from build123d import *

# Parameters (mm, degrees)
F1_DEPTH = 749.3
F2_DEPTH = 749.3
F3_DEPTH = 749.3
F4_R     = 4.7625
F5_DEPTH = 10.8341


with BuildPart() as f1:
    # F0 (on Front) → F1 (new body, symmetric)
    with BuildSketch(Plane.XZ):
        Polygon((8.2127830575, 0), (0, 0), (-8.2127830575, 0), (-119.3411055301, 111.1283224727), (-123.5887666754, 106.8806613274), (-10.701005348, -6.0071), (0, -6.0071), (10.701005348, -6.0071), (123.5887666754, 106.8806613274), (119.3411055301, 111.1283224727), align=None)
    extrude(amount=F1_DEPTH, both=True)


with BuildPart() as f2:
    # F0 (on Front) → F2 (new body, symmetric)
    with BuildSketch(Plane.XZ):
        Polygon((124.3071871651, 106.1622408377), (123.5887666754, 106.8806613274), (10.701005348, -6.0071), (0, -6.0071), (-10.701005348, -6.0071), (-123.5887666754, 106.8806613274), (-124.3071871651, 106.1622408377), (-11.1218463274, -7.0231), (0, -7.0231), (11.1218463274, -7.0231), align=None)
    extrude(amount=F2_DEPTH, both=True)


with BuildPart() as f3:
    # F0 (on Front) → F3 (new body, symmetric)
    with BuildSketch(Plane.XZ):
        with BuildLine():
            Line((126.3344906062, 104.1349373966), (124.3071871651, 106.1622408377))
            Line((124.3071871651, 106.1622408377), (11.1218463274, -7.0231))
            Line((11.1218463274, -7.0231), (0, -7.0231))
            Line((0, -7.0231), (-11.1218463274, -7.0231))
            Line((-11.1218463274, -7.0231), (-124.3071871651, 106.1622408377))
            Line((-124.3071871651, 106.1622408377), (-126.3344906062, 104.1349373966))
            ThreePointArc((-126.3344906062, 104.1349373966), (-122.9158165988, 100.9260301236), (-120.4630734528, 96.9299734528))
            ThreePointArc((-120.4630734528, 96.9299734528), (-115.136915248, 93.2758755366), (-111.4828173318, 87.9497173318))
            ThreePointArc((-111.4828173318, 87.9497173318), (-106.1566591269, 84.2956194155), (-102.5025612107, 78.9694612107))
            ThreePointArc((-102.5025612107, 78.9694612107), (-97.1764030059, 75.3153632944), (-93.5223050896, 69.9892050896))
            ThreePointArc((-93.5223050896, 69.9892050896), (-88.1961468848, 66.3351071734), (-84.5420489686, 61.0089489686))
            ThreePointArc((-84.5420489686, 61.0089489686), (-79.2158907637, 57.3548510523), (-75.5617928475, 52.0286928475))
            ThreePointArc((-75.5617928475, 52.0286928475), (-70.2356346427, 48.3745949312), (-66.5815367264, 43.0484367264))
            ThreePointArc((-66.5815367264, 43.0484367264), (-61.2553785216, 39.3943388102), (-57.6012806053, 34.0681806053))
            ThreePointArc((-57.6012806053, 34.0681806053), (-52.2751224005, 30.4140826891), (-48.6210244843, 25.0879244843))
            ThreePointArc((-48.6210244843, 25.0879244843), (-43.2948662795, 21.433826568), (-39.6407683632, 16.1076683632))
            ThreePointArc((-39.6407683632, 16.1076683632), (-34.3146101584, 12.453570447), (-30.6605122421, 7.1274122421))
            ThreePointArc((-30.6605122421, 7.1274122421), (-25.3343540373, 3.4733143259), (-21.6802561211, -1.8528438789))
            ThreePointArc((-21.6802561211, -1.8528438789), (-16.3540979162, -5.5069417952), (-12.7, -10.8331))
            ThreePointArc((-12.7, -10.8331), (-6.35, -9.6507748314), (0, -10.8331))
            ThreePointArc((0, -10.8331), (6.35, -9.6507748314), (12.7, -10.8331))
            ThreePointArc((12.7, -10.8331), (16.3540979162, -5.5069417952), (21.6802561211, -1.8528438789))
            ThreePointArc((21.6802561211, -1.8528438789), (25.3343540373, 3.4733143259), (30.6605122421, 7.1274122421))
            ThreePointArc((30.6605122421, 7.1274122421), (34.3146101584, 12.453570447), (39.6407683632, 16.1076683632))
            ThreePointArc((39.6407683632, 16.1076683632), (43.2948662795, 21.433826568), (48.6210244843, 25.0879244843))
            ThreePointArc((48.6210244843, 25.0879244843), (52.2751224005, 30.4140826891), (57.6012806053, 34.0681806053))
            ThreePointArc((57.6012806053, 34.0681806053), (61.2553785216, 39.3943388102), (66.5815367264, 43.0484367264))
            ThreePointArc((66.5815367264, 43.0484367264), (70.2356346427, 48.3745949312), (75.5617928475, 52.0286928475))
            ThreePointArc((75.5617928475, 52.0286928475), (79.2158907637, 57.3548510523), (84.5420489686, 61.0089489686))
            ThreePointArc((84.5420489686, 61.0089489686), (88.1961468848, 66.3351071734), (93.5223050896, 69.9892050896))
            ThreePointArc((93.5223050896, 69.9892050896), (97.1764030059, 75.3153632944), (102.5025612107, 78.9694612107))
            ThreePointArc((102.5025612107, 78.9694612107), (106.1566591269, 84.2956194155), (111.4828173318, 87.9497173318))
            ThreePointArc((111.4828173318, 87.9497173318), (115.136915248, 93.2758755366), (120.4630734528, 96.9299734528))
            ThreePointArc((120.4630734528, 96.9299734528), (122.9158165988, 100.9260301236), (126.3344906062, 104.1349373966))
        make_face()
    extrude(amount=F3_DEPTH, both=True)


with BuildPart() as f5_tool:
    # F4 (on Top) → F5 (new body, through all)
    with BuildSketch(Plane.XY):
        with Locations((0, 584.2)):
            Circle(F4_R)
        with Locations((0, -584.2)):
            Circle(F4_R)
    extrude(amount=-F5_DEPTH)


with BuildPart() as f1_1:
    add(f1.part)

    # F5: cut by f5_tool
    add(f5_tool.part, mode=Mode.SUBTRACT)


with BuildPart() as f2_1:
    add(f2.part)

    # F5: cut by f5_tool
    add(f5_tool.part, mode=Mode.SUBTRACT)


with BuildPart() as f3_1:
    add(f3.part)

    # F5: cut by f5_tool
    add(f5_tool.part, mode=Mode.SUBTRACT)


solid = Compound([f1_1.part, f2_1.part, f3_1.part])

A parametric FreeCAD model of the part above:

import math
import FreeCAD as App
import Part
import Sketcher
from FreeCAD import Vector
Q = App.Units.Quantity


def add_polygon(sketch, points):
    """Adds a closed chain of lines whose ends are joined by coincident constraints."""
    first, n = sketch.GeometryCount, len(points)
    for a, b in zip(points, points[1:] + points[:1]):
        sketch.addGeometry(Part.LineSegment(App.Vector(*a, 0), App.Vector(*b, 0)), False)
    for i in range(n):
        sketch.addConstraint(Sketcher.Constraint("Coincident", first + i, 2, first + (i + 1) % n, 1))

doc = App.newDocument("Part")
body = doc.addObject("PartDesign::Body", "Body")

# Sketch on XZ plane
sketch1 = body.newObject("Sketcher::SketchObject", "Sketch")
sketch1.AttachmentSupport = (doc.getObject("XZ_Plane"), [""])
sketch1.MapMode = "FlatFace"
add_polygon(sketch1, [(8.212783, 0), (-8.212783, 0), (-119.341106, 111.128322), (-123.588767, 106.880661), (-10.701005, -6.0071), (10.701005, -6.0071), (123.588767, 106.880661), (119.341106, 111.128322)])  # lines 0-7
sketch1.addConstraint([
    Sketcher.Constraint("Horizontal", 0),
    Sketcher.Constraint("Horizontal", 4),
    Sketcher.Constraint("Symmetric", 0, 2, 7, 2, -1, 1),
    Sketcher.Constraint("Symmetric", 2, 2, 5, 2, -2),
    Sketcher.Constraint("Symmetric", 1, 2, 6, 2, -2),
    Sketcher.Constraint("Perpendicular", 1, 2),
    Sketcher.Constraint("Perpendicular", 2, 3),
    Sketcher.Constraint("Perpendicular", 3, 5),
    Sketcher.Constraint("Perpendicular", 5, 6),
    Sketcher.Constraint("Distance", 2, Q("0.2365 in")),
    Sketcher.Constraint("DistanceY", -1, 1, 2, 2, Q("4.2079001 in")),
    Sketcher.Constraint("DistanceY", 3, 2, -1, 1, Q("0.2365 in")),
    Sketcher.Constraint("DistanceX", 4, 1, 4, 2, 21.402011),
])
pad1 = body.newObject("PartDesign::Pad", "Pad")
pad1.Profile = sketch1
pad1.Length = Q("59 in")
pad1.Midplane = True
body2 = doc.addObject("PartDesign::Body", "Body001")

# Sketch on XZ plane
sketch2 = body2.newObject("Sketcher::SketchObject", "Sketch001")
sketch2.AttachmentSupport = (doc.getObject("XZ_Plane001"), [""])
sketch2.MapMode = "FlatFace"
add_polygon(sketch2, [(124.307187, 106.162241), (123.588767, 106.880661), (10.701005, -6.0071), (-10.701005, -6.0071), (-123.588767, 106.880661), (-124.307187, 106.162241), (-11.121846, -7.0231), (11.121846, -7.0231)])  # lines 0-7
sketch2.addConstraint([
    Sketcher.Constraint("Horizontal", 2),
    Sketcher.Constraint("Horizontal", 6),
    Sketcher.Constraint("Symmetric", 0, 2, 3, 2, -2),
    Sketcher.Constraint("Symmetric", 4, 2, 7, 2, -2),
    Sketcher.Constraint("Perpendicular", 0, 1),
    Sketcher.Constraint("Perpendicular", 1, 3),
    Sketcher.Constraint("Perpendicular", 3, 4),
    Sketcher.Constraint("Perpendicular", 4, 5),
    Sketcher.Constraint("Perpendicular", 5, 7),
    Sketcher.Constraint("Distance", 0, Q("0.04 in")),
    Sketcher.Constraint("DistanceY", 5, 2, 2, 2, Q("0.04 in")),
    Sketcher.Constraint("DistanceY", -1, 1, 0, 2, Q("4.2079001 in")),
    Sketcher.Constraint("DistanceY", 1, 2, -1, 1, Q("0.2365 in")),
    Sketcher.Constraint("DistanceX", 2, 2, 2, 1, 21.402011),
])
pad2 = body2.newObject("PartDesign::Pad", "Pad001")
pad2.Profile = sketch2
pad2.Length = Q("59 in")
pad2.Midplane = True
body3 = doc.addObject("PartDesign::Body", "Body002")

# Sketch on XZ plane
sketch3 = body3.newObject("Sketcher::SketchObject", "Sketch002")
sketch3.AttachmentSupport = (doc.getObject("XZ_Plane002"), [""])
sketch3.MapMode = "FlatFace"
sketch3.addGeometry([
    Part.LineSegment(Vector(126.334491, 104.134937, 0), Vector(124.307187, 106.162241, 0)),  # 0
    Part.LineSegment(Vector(124.307187, 106.162241, 0), Vector(11.121846, -7.0231, 0)),  # 1
    Part.LineSegment(Vector(11.121846, -7.0231, 0), Vector(-11.121846, -7.0231, 0)),  # 2
    Part.LineSegment(Vector(-11.121846, -7.0231, 0), Vector(-124.307187, 106.162241, 0)),  # 3
    Part.LineSegment(Vector(-124.307187, 106.162241, 0), Vector(-126.334491, 104.134937, 0)),  # 4
    Part.ArcOfCircle(Part.Circle(Vector(-136.592916, 89.780387, 0), Vector(0, 0, 1), 17.643367), math.radians(23.905415), math.radians(54.448647)),  # 5
    Part.ArcOfCircle(Part.Circle(Vector(-127.612659, 80.800131, 0), Vector(0, 0, 1), 17.643367), math.radians(23.905415), math.radians(66.094585)),  # 6
    Part.ArcOfCircle(Part.Circle(Vector(-118.632403, 71.819875, 0), Vector(0, 0, 1), 17.643367), math.radians(23.905415), math.radians(66.094585)),  # 7
    Part.ArcOfCircle(Part.Circle(Vector(-109.652147, 62.839619, 0), Vector(0, 0, 1), 17.643367), math.radians(23.905415), math.radians(66.094585)),  # 8
    Part.ArcOfCircle(Part.Circle(Vector(-100.671891, 53.859363, 0), Vector(0, 0, 1), 17.643367), math.radians(23.905415), math.radians(66.094585)),  # 9
    Part.ArcOfCircle(Part.Circle(Vector(-91.691635, 44.879107, 0), Vector(0, 0, 1), 17.643367), math.radians(23.905415), math.radians(66.094585)),  # 10
    Part.ArcOfCircle(Part.Circle(Vector(-82.711379, 35.898851, 0), Vector(0, 0, 1), 17.643367), math.radians(23.905415), math.radians(66.094585)),  # 11
    Part.ArcOfCircle(Part.Circle(Vector(-73.731123, 26.918595, 0), Vector(0, 0, 1), 17.643367), math.radians(23.905415), math.radians(66.094585)),  # 12
    Part.ArcOfCircle(Part.Circle(Vector(-64.750867, 17.938339, 0), Vector(0, 0, 1), 17.643367), math.radians(23.905415), math.radians(66.094585)),  # 13
    Part.ArcOfCircle(Part.Circle(Vector(-55.77061, 8.958082, 0), Vector(0, 0, 1), 17.643367), math.radians(23.905415), math.radians(66.094585)),  # 14
    Part.ArcOfCircle(Part.Circle(Vector(-46.790354, -0.022174, 0), Vector(0, 0, 1), 17.643367), math.radians(23.905415), math.radians(66.094585)),  # 15
    Part.ArcOfCircle(Part.Circle(Vector(-37.810098, -9.00243, 0), Vector(0, 0, 1), 17.643367), math.radians(23.905415), math.radians(66.094585)),  # 16
    Part.ArcOfCircle(Part.Circle(Vector(-28.829842, -17.982686, 0), Vector(0, 0, 1), 17.643367), math.radians(23.905415), math.radians(66.094585)),  # 17
    Part.ArcOfCircle(Part.Circle(Vector(-6.35, -27.294141, 0), Vector(0, 0, 1), 17.643367), math.radians(68.905415), math.radians(111.094585)),  # 18
    Part.ArcOfCircle(Part.Circle(Vector(6.35, -27.294141, 0), Vector(0, 0, 1), 17.643367), math.radians(68.905415), math.radians(111.094585)),  # 19
    Part.ArcOfCircle(Part.Circle(Vector(28.829842, -17.982686, 0), Vector(0, 0, 1), 17.643367), math.radians(113.905415), math.radians(156.094585)),  # 20
    Part.ArcOfCircle(Part.Circle(Vector(37.810098, -9.00243, 0), Vector(0, 0, 1), 17.643367), math.radians(113.905415), math.radians(156.094585)),  # 21
    Part.ArcOfCircle(Part.Circle(Vector(46.790354, -0.022174, 0), Vector(0, 0, 1), 17.643367), math.radians(113.905415), math.radians(156.094585)),  # 22
    Part.ArcOfCircle(Part.Circle(Vector(55.77061, 8.958082, 0), Vector(0, 0, 1), 17.643367), math.radians(113.905415), math.radians(156.094585)),  # 23
    Part.ArcOfCircle(Part.Circle(Vector(64.750867, 17.938339, 0), Vector(0, 0, 1), 17.643367), math.radians(113.905415), math.radians(156.094585)),  # 24
    Part.ArcOfCircle(Part.Circle(Vector(73.731123, 26.918595, 0), Vector(0, 0, 1), 17.643367), math.radians(113.905415), math.radians(156.094585)),  # 25
    Part.ArcOfCircle(Part.Circle(Vector(82.711379, 35.898851, 0), Vector(0, 0, 1), 17.643367), math.radians(113.905415), math.radians(156.094585)),  # 26
    Part.ArcOfCircle(Part.Circle(Vector(91.691635, 44.879107, 0), Vector(0, 0, 1), 17.643367), math.radians(113.905415), math.radians(156.094585)),  # 27
    Part.ArcOfCircle(Part.Circle(Vector(100.671891, 53.859363, 0), Vector(0, 0, 1), 17.643367), math.radians(113.905415), math.radians(156.094585)),  # 28
    Part.ArcOfCircle(Part.Circle(Vector(109.652147, 62.839619, 0), Vector(0, 0, 1), 17.643367), math.radians(113.905415), math.radians(156.094585)),  # 29
    Part.ArcOfCircle(Part.Circle(Vector(118.632403, 71.819875, 0), Vector(0, 0, 1), 17.643367), math.radians(113.905415), math.radians(156.094585)),  # 30
    Part.ArcOfCircle(Part.Circle(Vector(127.612659, 80.800131, 0), Vector(0, 0, 1), 17.643367), math.radians(113.905415), math.radians(156.094585)),  # 31
    Part.ArcOfCircle(Part.Circle(Vector(136.592916, 89.780387, 0), Vector(0, 0, 1), 17.643367), math.radians(125.551353), math.radians(156.094585)),  # 32
], False)
sketch3.addConstraint([
    Sketcher.Constraint("Coincident", 0, 2, 1, 1),
    Sketcher.Constraint("Coincident", 1, 2, 2, 1),
    Sketcher.Constraint("Coincident", 2, 2, 3, 1),
    Sketcher.Constraint("Coincident", 3, 2, 4, 1),
    Sketcher.Constraint("Coincident", 4, 2, 5, 2),
    Sketcher.Constraint("Coincident", 5, 1, 6, 2),
    Sketcher.Constraint("Coincident", 6, 1, 7, 2),
    Sketcher.Constraint("Coincident", 7, 1, 8, 2),
    Sketcher.Constraint("Coincident", 8, 1, 9, 2),
    Sketcher.Constraint("Coincident", 9, 1, 10, 2),
    Sketcher.Constraint("Coincident", 10, 1, 11, 2),
    Sketcher.Constraint("Coincident", 11, 1, 12, 2),
    Sketcher.Constraint("Coincident", 12, 1, 13, 2),
    Sketcher.Constraint("Coincident", 13, 1, 14, 2),
    Sketcher.Constraint("Coincident", 14, 1, 15, 2),
    Sketcher.Constraint("Coincident", 15, 1, 16, 2),
    Sketcher.Constraint("Coincident", 16, 1, 17, 2),
    Sketcher.Constraint("Coincident", 17, 1, 18, 2),
    Sketcher.Constraint("Coincident", 18, 1, 19, 2),
    Sketcher.Constraint("Coincident", 19, 1, 20, 2),
    Sketcher.Constraint("Coincident", 20, 1, 21, 2),
    Sketcher.Constraint("Coincident", 21, 1, 22, 2),
    Sketcher.Constraint("Coincident", 22, 1, 23, 2),
    Sketcher.Constraint("Coincident", 23, 1, 24, 2),
    Sketcher.Constraint("Coincident", 24, 1, 25, 2),
    Sketcher.Constraint("Coincident", 25, 1, 26, 2),
    Sketcher.Constraint("Coincident", 26, 1, 27, 2),
    Sketcher.Constraint("Coincident", 27, 1, 28, 2),
    Sketcher.Constraint("Coincident", 28, 1, 29, 2),
    Sketcher.Constraint("Coincident", 29, 1, 30, 2),
    Sketcher.Constraint("Coincident", 30, 1, 31, 2),
    Sketcher.Constraint("Coincident", 31, 1, 32, 2),
    Sketcher.Constraint("Coincident", 32, 1, 0, 1),
    Sketcher.Constraint("Horizontal", 2),
    Sketcher.Constraint("Equal", 5, 6),
    Sketcher.Constraint("Equal", 6, 7),
    Sketcher.Constraint("Equal", 7, 8),
    Sketcher.Constraint("Equal", 8, 9),
    Sketcher.Constraint("Equal", 9, 10),
    Sketcher.Constraint("Equal", 10, 11),
    Sketcher.Constraint("Equal", 11, 12),
    Sketcher.Constraint("Equal", 12, 13),
    Sketcher.Constraint("Equal", 13, 14),
    Sketcher.Constraint("Equal", 14, 15),
    Sketcher.Constraint("Equal", 15, 16),
    Sketcher.Constraint("Equal", 16, 17),
    Sketcher.Constraint("Equal", 17, 18),
    Sketcher.Constraint("Equal", 18, 19),
    Sketcher.Constraint("Equal", 19, 20),
    Sketcher.Constraint("Equal", 20, 21),
    Sketcher.Constraint("Equal", 21, 22),
    Sketcher.Constraint("Equal", 22, 23),
    Sketcher.Constraint("Equal", 23, 24),
    Sketcher.Constraint("Equal", 24, 25),
    Sketcher.Constraint("Equal", 25, 26),
    Sketcher.Constraint("Equal", 26, 27),
    Sketcher.Constraint("Equal", 27, 28),
    Sketcher.Constraint("Equal", 28, 29),
    Sketcher.Constraint("Equal", 29, 30),
    Sketcher.Constraint("Equal", 30, 31),
    Sketcher.Constraint("Equal", 31, 32),
    Sketcher.Constraint("Symmetric", 18, 3, 19, 3, -2),
    Sketcher.Constraint("Symmetric", 17, 3, 20, 3, -2),
    Sketcher.Constraint("Symmetric", 16, 3, 21, 3, -2),
    Sketcher.Constraint("Symmetric", 15, 3, 22, 3, -2),
    Sketcher.Constraint("Symmetric", 14, 3, 23, 3, -2),
    Sketcher.Constraint("Symmetric", 13, 3, 24, 3, -2),
    Sketcher.Constraint("Symmetric", 12, 3, 25, 3, -2),
    Sketcher.Constraint("Symmetric", 11, 3, 26, 3, -2),
    Sketcher.Constraint("Symmetric", 10, 3, 27, 3, -2),
    Sketcher.Constraint("Symmetric", 9, 3, 28, 3, -2),
    Sketcher.Constraint("Symmetric", 8, 3, 29, 3, -2),
    Sketcher.Constraint("Symmetric", 7, 3, 30, 3, -2),
    Sketcher.Constraint("Symmetric", 6, 3, 31, 3, -2),
    Sketcher.Constraint("Symmetric", 5, 3, 32, 3, -2),
    Sketcher.Constraint("Symmetric", 0, 2, 3, 2, -2),
    Sketcher.Constraint("Perpendicular", 0, 1),
    Sketcher.Constraint("Perpendicular", 1, 3),
    Sketcher.Constraint("Perpendicular", 3, 4),
    Sketcher.Constraint("Horizontal", 17, 1, 18, 1),
    Sketcher.Constraint("Equal", 1, 3),
    Sketcher.Constraint("DistanceX", 17, 1, -1, 1, Q("0.5 in")),
    Sketcher.Constraint("DistanceX", 12, 3, -1, 1, Q("2.9028001 in")),
    Sketcher.Constraint("DistanceY", 1, 2, -1, 1, Q("0.2765 in")),
    Sketcher.Constraint("DistanceY", 17, 1, -1, 1, Q("0.4265 in")),
    Sketcher.Constraint("Radius", 5, 17.643367),
    Sketcher.Constraint("DistanceX", 16, 3, -1, 1, 37.810098),
    Sketcher.Constraint("Distance", 0, 2.86704),
    Sketcher.Constraint("DistanceX", 2, 2, 2, 1, 22.243693),
    Sketcher.Constraint("DistanceX", 6, 3, -1, 1, 127.612659),
    Sketcher.Constraint("DistanceY", -1, 1, 6, 3, 80.800131),
    Sketcher.Constraint("DistanceY", -1, 1, 8, 3, 62.839619),
    Sketcher.Constraint("DistanceX", 9, 3, -1, 1, 100.671891),
    Sketcher.Constraint("DistanceX", 11, 3, -1, 1, 82.711379),
    Sketcher.Constraint("DistanceY", -1, 1, 11, 3, 35.898851),
    Sketcher.Constraint("DistanceY", -1, 1, 13, 3, 17.938339),
    Sketcher.Constraint("DistanceX", 14, 3, -1, 1, 55.77061),
    Sketcher.Constraint("DistanceY", 16, 3, -1, 1, 9.00243),
    Sketcher.Constraint("DistanceY", -1, 1, 0, 2, 106.162241),
    Sketcher.Constraint("DistanceX", 7, 1, -1, 1, 102.502561),
    Sketcher.Constraint("DistanceY", -1, 1, 7, 1, 78.969461),
    Sketcher.Constraint("DistanceX", 9, 1, -1, 1, 84.542049),
    Sketcher.Constraint("DistanceY", -1, 1, 9, 1, 61.008949),
    Sketcher.Constraint("DistanceX", 12, 1, -1, 1, 57.601281),
    Sketcher.Constraint("DistanceY", -1, 1, 12, 1, 34.068181),
    Sketcher.Constraint("DistanceX", 14, 1, -1, 1, 39.640768),
    Sketcher.Constraint("DistanceY", -1, 1, 14, 1, 16.107668),
    Sketcher.Constraint("DistanceX", 5, 3, -1, 1, 136.592916),
    Sketcher.Constraint("DistanceX", 7, 3, -1, 1, 118.632403),
    Sketcher.Constraint("DistanceX", 10, 3, -1, 1, 91.691635),
    Sketcher.Constraint("DistanceX", 15, 3, -1, 1, 46.790354),
    Sketcher.Constraint("DistanceX", 17, 3, -1, 1, 28.829842),
])
pad3 = body3.newObject("PartDesign::Pad", "Pad002")
pad3.Profile = sketch3
pad3.Length = Q("59 in")
pad3.Midplane = True
body4 = doc.addObject("PartDesign::Body", "Body003")
body4.AllowCompound = True

# Sketch on XY plane
sketch4 = body4.newObject("Sketcher::SketchObject", "Sketch003")
sketch4.AttachmentSupport = (doc.getObject("XY_Plane003"), [""])
sketch4.MapMode = "FlatFace"
sketch4.addGeometry([
    Part.Circle(Vector(0, 584.2, 0), Vector(0, 0, 1), 4.7625),
    Part.Circle(Vector(0, -584.2, 0), Vector(0, 0, 1), 4.7625),
], False)
sketch4.addConstraint([
    Sketcher.Constraint("Equal", 0, 1),
    Sketcher.Constraint("Symmetric", 0, 3, 1, 3, -1, 1),
    Sketcher.Constraint("PointOnObject", 0, 3, -2),
    Sketcher.Constraint("Diameter", 0, Q("0.375 in")),
    Sketcher.Constraint("DistanceY", -1, 1, 0, 3, Q("23 in")),
])
pad4 = body4.newObject("PartDesign::Pad", "Pad003")
pad4.Profile = sketch4
pad4.Length = 10.8341
pad4.Reversed = True
doc.recompute()

body5 = doc.addObject("PartDesign::Body", "Body004")
body5.BaseFeature = body4
boolean = body.newObject("PartDesign::Boolean", "Boolean")
boolean.Type = "Cut"
boolean.addObjects([body5])
doc.recompute()

body6 = doc.addObject("PartDesign::Body", "Body005")
body6.BaseFeature = body4
boolean2 = body2.newObject("PartDesign::Boolean", "Boolean001")
boolean2.Type = "Cut"
boolean2.addObjects([body6])
doc.recompute()

boolean3 = body3.newObject("PartDesign::Boolean", "Boolean002")
boolean3.Type = "Cut"
boolean3.addObjects([body4])

doc.recompute()
